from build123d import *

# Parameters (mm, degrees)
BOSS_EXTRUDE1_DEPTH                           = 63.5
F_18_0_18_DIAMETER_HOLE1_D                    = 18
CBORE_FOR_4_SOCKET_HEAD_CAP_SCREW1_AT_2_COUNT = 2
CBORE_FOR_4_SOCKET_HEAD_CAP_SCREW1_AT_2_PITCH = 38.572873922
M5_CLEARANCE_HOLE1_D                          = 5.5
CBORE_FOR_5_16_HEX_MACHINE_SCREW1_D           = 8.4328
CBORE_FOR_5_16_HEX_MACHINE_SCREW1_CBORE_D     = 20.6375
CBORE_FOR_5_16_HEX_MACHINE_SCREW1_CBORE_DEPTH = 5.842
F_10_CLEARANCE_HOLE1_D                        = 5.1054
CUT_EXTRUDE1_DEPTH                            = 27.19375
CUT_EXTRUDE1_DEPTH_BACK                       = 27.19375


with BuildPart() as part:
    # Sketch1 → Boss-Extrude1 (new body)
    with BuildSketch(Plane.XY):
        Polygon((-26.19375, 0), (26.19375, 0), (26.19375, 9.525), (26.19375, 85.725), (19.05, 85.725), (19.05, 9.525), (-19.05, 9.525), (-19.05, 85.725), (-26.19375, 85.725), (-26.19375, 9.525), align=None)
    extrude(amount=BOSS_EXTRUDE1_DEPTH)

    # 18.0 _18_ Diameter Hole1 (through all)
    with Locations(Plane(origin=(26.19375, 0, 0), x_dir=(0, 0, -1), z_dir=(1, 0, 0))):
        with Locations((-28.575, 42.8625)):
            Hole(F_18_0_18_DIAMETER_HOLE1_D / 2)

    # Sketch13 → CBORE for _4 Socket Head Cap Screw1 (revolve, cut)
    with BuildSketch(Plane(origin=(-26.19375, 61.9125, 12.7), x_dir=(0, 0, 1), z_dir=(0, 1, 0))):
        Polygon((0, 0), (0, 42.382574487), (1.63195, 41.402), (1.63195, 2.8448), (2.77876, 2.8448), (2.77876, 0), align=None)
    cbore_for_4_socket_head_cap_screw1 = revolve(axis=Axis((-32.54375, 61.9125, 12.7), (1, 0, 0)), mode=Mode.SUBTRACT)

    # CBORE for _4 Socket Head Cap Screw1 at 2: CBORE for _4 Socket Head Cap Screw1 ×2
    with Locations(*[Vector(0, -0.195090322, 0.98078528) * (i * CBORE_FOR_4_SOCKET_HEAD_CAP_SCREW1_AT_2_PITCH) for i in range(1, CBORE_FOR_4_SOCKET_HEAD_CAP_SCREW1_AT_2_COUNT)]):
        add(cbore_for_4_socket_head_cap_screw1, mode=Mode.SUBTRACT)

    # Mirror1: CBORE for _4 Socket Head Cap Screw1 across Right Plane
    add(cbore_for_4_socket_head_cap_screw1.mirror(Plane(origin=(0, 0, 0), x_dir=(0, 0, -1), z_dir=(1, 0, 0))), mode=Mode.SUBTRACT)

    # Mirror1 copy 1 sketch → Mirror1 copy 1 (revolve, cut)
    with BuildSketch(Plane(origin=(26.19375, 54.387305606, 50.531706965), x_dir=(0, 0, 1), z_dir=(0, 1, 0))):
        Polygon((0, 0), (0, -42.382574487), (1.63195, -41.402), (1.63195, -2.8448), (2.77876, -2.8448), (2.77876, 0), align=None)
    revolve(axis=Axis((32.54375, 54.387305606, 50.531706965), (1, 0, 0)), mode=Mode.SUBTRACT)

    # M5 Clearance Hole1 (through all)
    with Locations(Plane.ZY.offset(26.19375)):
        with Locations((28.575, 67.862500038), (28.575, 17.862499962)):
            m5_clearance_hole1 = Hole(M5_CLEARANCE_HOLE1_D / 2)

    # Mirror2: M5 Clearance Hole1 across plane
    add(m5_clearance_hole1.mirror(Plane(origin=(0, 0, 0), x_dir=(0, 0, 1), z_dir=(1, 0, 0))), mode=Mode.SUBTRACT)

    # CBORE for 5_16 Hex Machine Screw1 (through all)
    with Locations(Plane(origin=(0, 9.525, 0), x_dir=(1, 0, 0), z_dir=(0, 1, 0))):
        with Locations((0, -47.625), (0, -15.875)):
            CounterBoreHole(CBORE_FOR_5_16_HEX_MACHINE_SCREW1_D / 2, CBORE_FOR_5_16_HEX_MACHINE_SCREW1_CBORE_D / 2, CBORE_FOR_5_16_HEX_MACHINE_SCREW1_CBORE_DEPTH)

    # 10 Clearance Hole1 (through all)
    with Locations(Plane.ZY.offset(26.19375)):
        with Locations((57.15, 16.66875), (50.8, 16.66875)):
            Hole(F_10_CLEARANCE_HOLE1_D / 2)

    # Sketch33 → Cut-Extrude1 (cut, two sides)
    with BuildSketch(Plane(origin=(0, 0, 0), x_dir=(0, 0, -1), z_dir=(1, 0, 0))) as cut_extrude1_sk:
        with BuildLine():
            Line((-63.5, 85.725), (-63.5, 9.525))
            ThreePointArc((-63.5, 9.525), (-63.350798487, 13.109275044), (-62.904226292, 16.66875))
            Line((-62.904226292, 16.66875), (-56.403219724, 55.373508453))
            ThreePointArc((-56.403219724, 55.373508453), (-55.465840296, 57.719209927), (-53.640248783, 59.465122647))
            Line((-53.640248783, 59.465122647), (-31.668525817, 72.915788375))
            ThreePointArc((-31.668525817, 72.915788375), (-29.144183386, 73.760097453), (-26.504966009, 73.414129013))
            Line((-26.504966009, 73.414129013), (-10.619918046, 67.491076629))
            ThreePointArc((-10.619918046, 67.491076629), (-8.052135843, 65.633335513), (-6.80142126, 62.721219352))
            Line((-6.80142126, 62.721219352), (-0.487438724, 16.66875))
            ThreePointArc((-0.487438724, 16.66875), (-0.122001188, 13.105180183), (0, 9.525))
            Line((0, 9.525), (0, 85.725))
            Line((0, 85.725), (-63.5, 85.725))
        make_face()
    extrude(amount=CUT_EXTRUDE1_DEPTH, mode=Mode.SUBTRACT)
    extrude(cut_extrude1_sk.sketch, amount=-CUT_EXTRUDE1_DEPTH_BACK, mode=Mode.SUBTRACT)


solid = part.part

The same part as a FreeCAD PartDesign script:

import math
import FreeCAD as App
import Part
import Sketcher
Q = App.Units.Quantity

doc = App.newDocument("Part")
body = doc.addObject("PartDesign::Body", "Body")

# Sketch on XY plane
sketch1 = body.newObject("Sketcher::SketchObject", "Sketch")
sketch1.AttachmentSupport = (doc.getObject("XY_Plane"), [""])
sketch1.MapMode = "FlatFace"
sketch1.addGeometry([
    Part.LineSegment(App.Vector(-26.19375, 0, 0), App.Vector(26.19375, 0, 0)),  # 0
    Part.LineSegment(App.Vector(26.19375, 0, 0), App.Vector(26.19375, 85.725, 0)),  # 1
    Part.LineSegment(App.Vector(26.19375, 85.725, 0), App.Vector(19.05, 85.725, 0)),  # 2
    Part.LineSegment(App.Vector(19.05, 85.725, 0), App.Vector(19.05, 9.525, 0)),  # 3
    Part.LineSegment(App.Vector(19.05, 9.525, 0), App.Vector(-19.05, 9.525, 0)),  # 4
    Part.LineSegment(App.Vector(-19.05, 9.525, 0), App.Vector(-19.05, 85.725, 0)),  # 5
    Part.LineSegment(App.Vector(-19.05, 85.725, 0), App.Vector(-26.19375, 85.725, 0)),  # 6
    Part.LineSegment(App.Vector(-26.19375, 85.725, 0), App.Vector(-26.19375, 0, 0)),  # 7
], False)
sketch1.addConstraint([
    Sketcher.Constraint("Coincident", 0, 2, 1, 1),
    Sketcher.Constraint("Coincident", 1, 2, 2, 1),
    Sketcher.Constraint("Coincident", 2, 2, 3, 1),
    Sketcher.Constraint("Coincident", 3, 2, 4, 1),
    Sketcher.Constraint("Coincident", 4, 2, 5, 1),
    Sketcher.Constraint("Coincident", 5, 2, 6, 1),
    Sketcher.Constraint("Coincident", 6, 2, 7, 1),
    Sketcher.Constraint("Coincident", 7, 2, 0, 1),
    Sketcher.Constraint("Horizontal", 0),
    Sketcher.Constraint("Vertical", 1),
    Sketcher.Constraint("Horizontal", 2),
    Sketcher.Constraint("Vertical", 3),
    Sketcher.Constraint("Horizontal", 4),
    Sketcher.Constraint("Vertical", 5),
    Sketcher.Constraint("Horizontal", 6),
    Sketcher.Constraint("Vertical", 7),
    Sketcher.Constraint("Symmetric", 0, 2, 7, 2, -1, 1),
    Sketcher.Constraint("Symmetric", 2, 2, 5, 2, -2),
    Sketcher.Constraint("DistanceY", 3, 2, 3, 1, Q("3 in")),
    Sketcher.Constraint("DistanceX", 4, 2, 4, 1, Q("1.5 in")),
    Sketcher.Constraint("DistanceX", 0, 1, 0, 2, Q("2.0625 in")),
    Sketcher.Constraint("DistanceY", 1, 1, 1, 2, Q("3.375 in")),
])
pad1 = body.newObject("PartDesign::Pad", "Pad")
pad1.Profile = sketch1
pad1.Length = Q("2.5 in")

# Sketch on YZ plane
sketch2 = body.newObject("Sketcher::SketchObject", "Sketch001")
sketch2.AttachmentSupport = (doc.getObject("YZ_Plane"), [""])
sketch2.MapMode = "FlatFace"
sketch2.AttachmentOffset = App.Placement(App.Vector(0, 0, 1.03125 * 25.4), App.Rotation())
sketch2.addGeometry(Part.Circle(App.Vector(42.8625, 28.575, 0), App.Vector(0, 0, 1), 9), False)
sketch2.addConstraint([
    Sketcher.Constraint("Diameter", 0, 18.0),
    Sketcher.Constraint("DistanceX", -1, 1, 0, 3, Q("1.6875 in")),
    Sketcher.Constraint("DistanceY", -1, 1, 0, 3, Q("1.125 in")),
])
doc.recompute()
hole = body.newObject("PartDesign::Hole", "Hole")
hole.Profile = sketch2
hole.ThreadType = "None"
hole.Diameter = 18
hole.DepthType = "ThroughAll"

# Sketch on XZ plane
sketch3 = body.newObject("Sketcher::SketchObject", "Sketch002")
sketch3.AttachmentSupport = (doc.getObject("XZ_Plane"), [""])
sketch3.MapMode = "FlatFace"
sketch3.AttachmentOffset = App.Placement(App.Vector(0, 0, -2.4375 * 25.4), App.Rotation())
sketch3.addGeometry([
    Part.LineSegment(App.Vector(16.188824, 12.7, 0), App.Vector(-26.19375, 12.7, 0)),  # 0
    Part.LineSegment(App.Vector(-26.19375, 12.7, 0), App.Vector(-26.19375, 15.47876, 0)),  # 1
    Part.LineSegment(App.Vector(-26.19375, 15.47876, 0), App.Vector(-23.34895, 15.47876, 0)),  # 2
    Part.LineSegment(App.Vector(-23.34895, 15.47876, 0), App.Vector(-23.34895, 14.33195, 0)),  # 3
    Part.LineSegment(App.Vector(-23.34895, 14.33195, 0), App.Vector(15.20825, 14.33195, 0)),  # 4
    Part.LineSegment(App.Vector(15.20825, 14.33195, 0), App.Vector(16.188824, 12.7, 0)),  # 5
], False)
sketch3.addGeometry(Part.LineSegment(App.Vector(-26.19375, 12.7, 0), App.Vector(16.188824, 12.7, 0)), True)  # axis
sketch3.addConstraint([
    Sketcher.Constraint("Coincident", 0, 2, 1, 1),
    Sketcher.Constraint("Coincident", 1, 2, 2, 1),
    Sketcher.Constraint("Coincident", 2, 2, 3, 1),
    Sketcher.Constraint("Coincident", 3, 2, 4, 1),
    Sketcher.Constraint("Coincident", 4, 2, 5, 1),
    Sketcher.Constraint("Coincident", 5, 2, 0, 1),
    Sketcher.Constraint("Horizontal", 0),
    Sketcher.Constraint("Vertical", 1),
    Sketcher.Constraint("Horizontal", 2),
    Sketcher.Constraint("Vertical", 3),
    Sketcher.Constraint("Horizontal", 4),
    Sketcher.Constraint("Horizontal", 6),
    Sketcher.Constraint("Coincident", 6, 1, 0, 2),
    Sketcher.Constraint("Equal", 0, 6),
    Sketcher.Constraint("Angle", 5, Q("-59 deg")),
    Sketcher.Constraint("DistanceY", -1, 1, 0, 2, Q("0.5 in")),
    Sketcher.Constraint("DistanceX", 2, 1, 2, 2, Q("0.112 in")),
    Sketcher.Constraint("DistanceX", 4, 1, 4, 2, Q("1.518 in")),
    Sketcher.Constraint("DistanceY", 1, 1, 1, 2, Q("0.1094 in")),
    Sketcher.Constraint("DistanceX", 0, 2, -1, 1, Q("1.03125 in")),
    Sketcher.Constraint("DistanceY", 3, 2, 3, 1, 1.14681),
])
groove = body.newObject("PartDesign::Groove", "Groove")
groove.Profile = sketch3
groove.ReferenceAxis = (sketch3, ["Axis0"])
groove.Angle = 360
doc.recompute()

datumline = body.newObject("PartDesign::Line", "DatumLine")
datumline.Placement = App.Placement(App.Vector(0, 0, 0), App.Rotation(App.Vector(0, 0, 1), App.Vector(0, -0.195090322, 0.98078528)))
linearpattern = body.newObject("PartDesign::LinearPattern", "LinearPattern")
linearpattern.Originals = [groove]
linearpattern.Direction = (datumline, [""])
linearpattern.Mode = "offset"
linearpattern.Offset = 38.572874
linearpattern.Occurrences = 2
body.Tip = linearpattern
doc.recompute()

mirrored = body.newObject("PartDesign::Mirrored", "Mirrored")
mirrored.Originals = [groove]
mirrored.MirrorPlane = (doc.getObject("YZ_Plane"), [""])
body.Tip = mirrored

# Sketch on XZ plane
sketch4 = body.newObject("Sketcher::SketchObject", "Sketch003")
sketch4.AttachmentSupport = (doc.getObject("XZ_Plane"), [""])
sketch4.MapMode = "FlatFace"
sketch4.AttachmentOffset = App.Placement(App.Vector(0, 0, -54.387306), App.Rotation())
sketch4.addGeometry([
    Part.LineSegment(App.Vector(26.19375, 50.531707, 0), App.Vector(-16.188824, 50.531707, 0)),  # 0
    Part.LineSegment(App.Vector(-16.188824, 50.531707, 0), App.Vector(-15.20825, 52.163657, 0)),  # 1
    Part.LineSegment(App.Vector(-15.20825, 52.163657, 0), App.Vector(23.34895, 52.163657, 0)),  # 2
    Part.LineSegment(App.Vector(23.34895, 52.163657, 0), App.Vector(23.34895, 53.310467, 0)),  # 3
    Part.LineSegment(App.Vector(23.34895, 53.310467, 0), App.Vector(26.19375, 53.310467, 0)),  # 4
    Part.LineSegment(App.Vector(26.19375, 53.310467, 0), App.Vector(26.19375, 50.531707, 0)),  # 5
], False)
sketch4.addGeometry(Part.LineSegment(App.Vector(-16.188824, 50.531707, 0), App.Vector(26.19375, 50.531707, 0)), True)  # axis
sketch4.addConstraint([
    Sketcher.Constraint("Coincident", 0, 2, 1, 1),
    Sketcher.Constraint("Coincident", 1, 2, 2, 1),
    Sketcher.Constraint("Coincident", 2, 2, 3, 1),
    Sketcher.Constraint("Coincident", 3, 2, 4, 1),
    Sketcher.Constraint("Coincident", 4, 2, 5, 1),
    Sketcher.Constraint("Coincident", 5, 2, 0, 1),
    Sketcher.Constraint("Horizontal", 0),
    Sketcher.Constraint("Horizontal", 2),
    Sketcher.Constraint("Vertical", 3),
    Sketcher.Constraint("Horizontal", 4),
    Sketcher.Constraint("Vertical", 5),
    Sketcher.Constraint("Horizontal", 6),
    Sketcher.Constraint("Coincident", 6, 1, 0, 2),
    Sketcher.Constraint("Vertical", 4, 2, 6, 2),
    Sketcher.Constraint("Angle", 1, Q("59 deg")),
    Sketcher.Constraint("DistanceX", 2, 1, 2, 2, Q("1.518 in")),
    Sketcher.Constraint("DistanceX", 4, 1, 4, 2, Q("0.112 in")),
    Sketcher.Constraint("DistanceY", 5, 2, 5, 1, Q("0.1094 in")),
    Sketcher.Constraint("DistanceX", -1, 1, 4, 2, Q("1.03125 in")),
    Sketcher.Constraint("DistanceY", 3, 1, 3, 2, 1.14681),
    Sketcher.Constraint("DistanceY", -1, 1, 0, 2, 50.531707),
])
groove2 = body.newObject("PartDesign::Groove", "Groove001")
groove2.Profile = sketch4
groove2.ReferenceAxis = (sketch4, ["Axis0"])
groove2.Angle = 360

# Sketch on YZ plane
sketch5 = body.newObject("Sketcher::SketchObject", "Sketch004")
sketch5.AttachmentSupport = (doc.getObject("YZ_Plane"), [""])
sketch5.MapMode = "FlatFace"
sketch5.AttachmentOffset = App.Placement(App.Vector(0, 0, -1.03125 * 25.4), App.Rotation())
sketch5.addGeometry([
    Part.Circle(App.Vector(67.8625, 28.575, 0), App.Vector(0, 0, 1), 2.75),
    Part.Circle(App.Vector(17.8625, 28.575, 0), App.Vector(0, 0, 1), 2.75),
], False)
sketch5.addConstraint([
    Sketcher.Constraint("Equal", 0, 1),
    Sketcher.Constraint("Horizontal", 0, 3, 1, 3),
    Sketcher.Constraint("Diameter", 0, 5.5),
    Sketcher.Constraint("DistanceY", -1, 1, 0, 3, Q("1.125 in")),
    Sketcher.Constraint("DistanceX", -1, 1, 0, 3, 67.8625),
    Sketcher.Constraint("DistanceX", -1, 1, 1, 3, 17.8625),
])
doc.recompute()
hole2 = body.newObject("PartDesign::Hole", "Hole001")
hole2.Profile = sketch5
hole2.ThreadType = "None"
hole2.Diameter = 5.5
hole2.DepthType = "ThroughAll"
hole2.Reversed = True
doc.recompute()

mirrored2 = body.newObject("PartDesign::Mirrored", "Mirrored001")
mirrored2.Originals = [hole2]
mirrored2.MirrorPlane = (doc.getObject("YZ_Plane"), [""])
body.Tip = mirrored2

# Sketch on XZ plane
sketch6 = body.newObject("Sketcher::SketchObject", "Sketch005")
sketch6.AttachmentSupport = (doc.getObject("XZ_Plane"), [""])
sketch6.MapMode = "FlatFace"
sketch6.AttachmentOffset = App.Placement(App.Vector(0, 0, -0.375 * 25.4), App.Rotation())
sketch6.addGeometry([
    Part.Circle(App.Vector(0, 47.625, 0), App.Vector(0, 0, 1), 4.2164),
    Part.Circle(App.Vector(0, 15.875, 0), App.Vector(0, 0, 1), 4.2164),
], False)
sketch6.addConstraint([
    Sketcher.Constraint("Equal", 0, 1),
    Sketcher.Constraint("PointOnObject", 0, 3, -2),
    Sketcher.Constraint("PointOnObject", 1, 3, -2),
    Sketcher.Constraint("Diameter", 0, Q("0.332 in")),
    Sketcher.Constraint("DistanceY", 1, 3, 0, 3, Q("1.25 in")),
    Sketcher.Constraint("DistanceY", -1, 1, 0, 3, Q("1.875 in")),
])
doc.recompute()
hole3 = body.newObject("PartDesign::Hole", "Hole002")
hole3.Profile = sketch6
hole3.ThreadType = "None"
hole3.Diameter = Q("0.332 in")
hole3.DepthType = "ThroughAll"
hole3.HoleCutType = "Counterbore"
hole3.HoleCutDiameter = Q("0.8125 in")
hole3.HoleCutDepth = Q("0.23 in")
hole3.Reversed = True

# Sketch on YZ plane
sketch7 = body.newObject("Sketcher::SketchObject", "Sketch006")
sketch7.AttachmentSupport = (doc.getObject("YZ_Plane"), [""])
sketch7.MapMode = "FlatFace"
sketch7.AttachmentOffset = App.Placement(App.Vector(0, 0, -1.03125 * 25.4), App.Rotation())
sketch7.addGeometry([
    Part.Circle(App.Vector(16.66875, 57.15, 0), App.Vector(0, 0, 1), 2.5527),
    Part.Circle(App.Vector(16.66875, 50.8, 0), App.Vector(0, 0, 1), 2.5527),
], False)
sketch7.addConstraint([
    Sketcher.Constraint("Equal", 0, 1),
    Sketcher.Constraint("Vertical", 0, 3, 1, 3),
    Sketcher.Constraint("Diameter", 0, Q("0.201 in")),
    Sketcher.Constraint("DistanceY", -1, 1, 1, 3, Q("2 in")),
    Sketcher.Constraint("DistanceY", -1, 1, 0, 3, Q("2.25 in")),
    Sketcher.Constraint("DistanceX", -1, 1, 0, 3, Q("0.65625 in")),
])
doc.recompute()
hole4 = body.newObject("PartDesign::Hole", "Hole003")
hole4.Profile = sketch7
hole4.ThreadType = "None"
hole4.Diameter = Q("0.201 in")
hole4.DepthType = "ThroughAll"
hole4.Reversed = True

# Sketch on YZ plane
sketch8 = body.newObject("Sketcher::SketchObject", "Sketch007")
sketch8.AttachmentSupport = (doc.getObject("YZ_Plane"), [""])
sketch8.MapMode = "FlatFace"
sketch8.addGeometry([
    Part.LineSegment(App.Vector(85.725, 63.5, 0), App.Vector(9.525, 63.5, 0)),  # 0
    Part.ArcOfCircle(Part.Circle(App.Vector(9.525, 20.372795, 0), App.Vector(0, 0, 1), 43.127205), math.radians(80.46537), math.radians(90)),  # 1
    Part.LineSegment(App.Vector(16.66875, 62.904226, 0), App.Vector(55.373508, 56.40322, 0)),  # 2
    Part.ArcOfCircle(Part.Circle(App.Vector(54.387306, 50.531707, 0), App.Vector(0, 0, 1), 5.95376), math.radians(31.474166), math.radians(80.46537)),  # 3
    Part.LineSegment(App.Vector(59.465123, 53.640249, 0), App.Vector(72.915788, 31.668526, 0)),  # 4
    Part.ArcOfCircle(Part.Circle(App.Vector(67.8625, 28.575, 0), App.Vector(0, 0, 1), 5.925), math.radians(-20.448959), math.radians(31.474166)),  # 5
    Part.LineSegment(App.Vector(73.414129, 26.504966, 0), App.Vector(67.491077, 10.619918, 0)),  # 6
    Part.ArcOfCircle(Part.Circle(App.Vector(61.9125, 12.7, 0), App.Vector(0, 0, 1), 5.95376), math.radians(-82.193187), math.radians(-20.448959)),  # 7
    Part.LineSegment(App.Vector(62.721219, 6.801421, 0), App.Vector(16.66875, 0.487439, 0)),  # 8
    Part.ArcOfCircle(Part.Circle(App.Vector(9.525, 52.592006, 0), App.Vector(0, 0, 1), 52.592006), math.radians(-90), math.radians(-82.193187)),  # 9
    Part.LineSegment(App.Vector(9.525, 0, 0), App.Vector(85.725, 0, 0)),  # 10
    Part.LineSegment(App.Vector(85.725, 0, 0), App.Vector(85.725, 63.5, 0)),  # 11
], False)
sketch8.addConstraint([
    Sketcher.Constraint("Tangent", 0, 2, 1, 2),
    Sketcher.Constraint("Tangent", 1, 1, 2, 1),
    Sketcher.Constraint("Tangent", 2, 2, 3, 2),
    Sketcher.Constraint("Tangent", 3, 1, 4, 1),
    Sketcher.Constraint("Tangent", 4, 2, 5, 2),
    Sketcher.Constraint("Tangent", 5, 1, 6, 1),
    Sketcher.Constraint("Tangent", 6, 2, 7, 2),
    Sketcher.Constraint("Tangent", 7, 1, 8, 1),
    Sketcher.Constraint("Tangent", 8, 2, 9, 2),
    Sketcher.Constraint("Tangent", 9, 1, 10, 1),
    Sketcher.Constraint("Coincident", 10, 2, 11, 1),
    Sketcher.Constraint("Coincident", 11, 2, 0, 1),
    Sketcher.Constraint("Horizontal", 0),
    Sketcher.Constraint("Horizontal", 10),
    Sketcher.Constraint("Vertical", 11),
    Sketcher.Constraint("Equal", 3, 7),
    Sketcher.Constraint("PointOnObject", 9, 1, -1),
    Sketcher.Constraint("Vertical", 1, 3, 9, 3),
    Sketcher.Constraint("Vertical", 1, 1, 8, 2),
    Sketcher.Constraint("DistanceX", 0, 2, 0, 1, Q("3 in")),
    Sketcher.Constraint("DistanceY", 11, 1, 11, 2, Q("2.5 in")),
    Sketcher.Constraint("DistanceY", 7, 3, 0, 2, Q("2 in")),
    Sketcher.Constraint("Radius", 3, Q("0.2344 in")),
    Sketcher.Constraint("Radius", 5, 5.925),
    Sketcher.Constraint("DistanceX", -1, 1, 1, 3, Q("0.375 in")),
    Sketcher.Constraint("DistanceY", -1, 1, 5, 3, Q("1.125 in")),
    Sketcher.Constraint("DistanceX", -1, 1, 7, 3, Q("2.4375 in")),
    Sketcher.Constraint("DistanceX", -1, 1, 1, 1, Q("0.65625 in")),
    Sketcher.Constraint("Radius", 1, 43.127205),
    Sketcher.Constraint("DistanceX", -1, 1, 5, 3, 67.8625),
    Sketcher.Constraint("DistanceY", 3, 3, 9, 3, 2.060299),
])
pocket1 = body.newObject("PartDesign::Pocket", "Pocket")
pocket1.Profile = sketch8
pocket1.Type = "ThroughAll"
pocket1.Midplane = True

doc.recompute()
